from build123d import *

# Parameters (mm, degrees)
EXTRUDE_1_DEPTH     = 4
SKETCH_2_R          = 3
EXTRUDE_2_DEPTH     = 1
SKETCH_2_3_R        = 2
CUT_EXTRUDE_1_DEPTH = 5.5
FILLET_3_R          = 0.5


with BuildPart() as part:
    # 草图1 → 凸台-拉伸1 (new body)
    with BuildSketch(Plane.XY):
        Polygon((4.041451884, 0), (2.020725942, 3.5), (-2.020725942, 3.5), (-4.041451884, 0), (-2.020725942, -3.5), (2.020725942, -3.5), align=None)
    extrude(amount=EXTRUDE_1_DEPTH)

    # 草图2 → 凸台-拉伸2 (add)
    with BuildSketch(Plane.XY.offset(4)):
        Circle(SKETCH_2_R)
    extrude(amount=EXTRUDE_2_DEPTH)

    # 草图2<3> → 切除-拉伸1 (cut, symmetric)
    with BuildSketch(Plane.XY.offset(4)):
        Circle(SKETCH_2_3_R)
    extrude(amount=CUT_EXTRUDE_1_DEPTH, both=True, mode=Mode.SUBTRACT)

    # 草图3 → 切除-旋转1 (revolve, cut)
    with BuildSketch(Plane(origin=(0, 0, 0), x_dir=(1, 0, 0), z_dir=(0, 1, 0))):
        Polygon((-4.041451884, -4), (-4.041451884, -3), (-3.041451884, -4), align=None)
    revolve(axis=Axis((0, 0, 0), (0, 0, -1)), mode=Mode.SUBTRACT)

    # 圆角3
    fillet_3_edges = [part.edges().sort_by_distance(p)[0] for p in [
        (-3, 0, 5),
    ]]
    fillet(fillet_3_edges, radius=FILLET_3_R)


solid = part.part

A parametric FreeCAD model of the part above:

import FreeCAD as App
import Part
import Sketcher

V = App.Vector
Q = App.Units.Quantity


def edges_at(feature, points):
    """Names of the edges that pass closest to the given points."""
    edges = feature.Shape.Edges
    near = lambda p: min(range(len(edges)), key=lambda i: edges[i].distToShape(Part.Vertex(*p))[0])
    return sorted({f"Edge{near(p) + 1}" for p in points})

doc = App.newDocument("Part")
body = doc.addObject("PartDesign::Body", "Body")

sketch1 = body.newObject("Sketcher::SketchObject", "Sketch")
sketch1.AttachmentSupport = (doc.getObject("XY_Plane"), [""])
sketch1.MapMode = "FlatFace"
sketch1.addGeometry(Part.LineSegment(V(4.041452, 0, 0), V(2.020726, 3.5, 0)), False)
sketch1.addGeometry(Part.LineSegment(V(2.020726, 3.5, 0), V(-2.020726, 3.5, 0)), False)
sketch1.addGeometry(Part.LineSegment(V(-2.020726, 3.5, 0), V(-4.041452, 0, 0)), False)
sketch1.addGeometry(Part.LineSegment(V(-4.041452, 0, 0), V(-2.020726, -3.5, 0)), False)
sketch1.addGeometry(Part.LineSegment(V(-2.020726, -3.5, 0), V(2.020726, -3.5, 0)), False)
sketch1.addGeometry(Part.LineSegment(V(2.020726, -3.5, 0), V(4.041452, 0, 0)), False)
sketch1.addConstraint(Sketcher.Constraint("Coincident", 0, 2, 1, 1))
sketch1.addConstraint(Sketcher.Constraint("Coincident", 1, 2, 2, 1))
sketch1.addConstraint(Sketcher.Constraint("Coincident", 2, 2, 3, 1))
sketch1.addConstraint(Sketcher.Constraint("Coincident", 3, 2, 4, 1))
sketch1.addConstraint(Sketcher.Constraint("Coincident", 4, 2, 5, 1))
sketch1.addConstraint(Sketcher.Constraint("Coincident", 5, 2, 0, 1))
sketch1.addConstraint(Sketcher.Constraint("Horizontal", 1))
sketch1.addConstraint(Sketcher.Constraint("Horizontal", 4))
sketch1.addConstraint(Sketcher.Constraint("Symmetric", 0, 2, 3, 2, -1, 1))
sketch1.addConstraint(Sketcher.Constraint("Symmetric", 2, 2, 5, 2, -1, 1))
sketch1.addConstraint(Sketcher.Constraint("PointOnObject", 2, 2, -1))
sketch1.addConstraint(Sketcher.Constraint("Parallel", 2, 5))
sketch1.addConstraint(Sketcher.Constraint("Vertical", 1, 2, 3, 2))
sketch1.addConstraint(Sketcher.Constraint("Angle", 0, Q("120 deg")))
sketch1.addConstraint(Sketcher.Constraint("DistanceY", 3, 2, 1, 2, Q("7 mm")))
sketch1.addConstraint(Sketcher.Constraint("DistanceX", 1, 2, 1, 1, Q("4.041452 mm")))
pad1 = body.newObject("PartDesign::Pad", "Pad")
pad1.Profile = sketch1
pad1.Length = 4

sketch2 = body.newObject("Sketcher::SketchObject", "Sketch001")
sketch2.AttachmentSupport = (doc.getObject("XY_Plane"), [""])
sketch2.MapMode = "FlatFace"
sketch2.AttachmentOffset = App.Placement(V(0, 0, 4), App.Rotation())
sketch2.addGeometry(Part.Circle(V(0, 0, 0), V(0, 0, 1), 3), False)
sketch2.addConstraint(Sketcher.Constraint("Coincident", 0, 3, -1, 1))
sketch2.addConstraint(Sketcher.Constraint("Diameter", 0, Q("6 mm")))
pad2 = body.newObject("PartDesign::Pad", "Pad001")
pad2.Profile = sketch2
pad2.Length = 1

sketch3 = body.newObject("Sketcher::SketchObject", "Sketch002")
sketch3.AttachmentSupport = (doc.getObject("XY_Plane"), [""])
sketch3.MapMode = "FlatFace"
sketch3.AttachmentOffset = App.Placement(V(0, 0, 4), App.Rotation())
sketch3.addGeometry(Part.Circle(V(0, 0, 0), V(0, 0, 1), 2), False)
sketch3.addConstraint(Sketcher.Constraint("Coincident", 0, 3, -1, 1))
sketch3.addConstraint(Sketcher.Constraint("Diameter", 0, Q("4 mm")))
pocket1 = body.newObject("PartDesign::Pocket", "Pocket")
pocket1.Profile = sketch3
pocket1.Length = 11
pocket1.Midplane = True

sketch4 = body.newObject("Sketcher::SketchObject", "Sketch003")
sketch4.AttachmentSupport = (doc.getObject("XZ_Plane"), [""])
sketch4.MapMode = "FlatFace"
sketch4.addGeometry(Part.LineSegment(V(-4.041452, 3, 0), V(-4.041452, 4, 0)), False)
sketch4.addGeometry(Part.LineSegment(V(-4.041452, 4, 0), V(-3.041452, 4, 0)), False)
sketch4.addGeometry(Part.LineSegment(V(-3.041452, 4, 0), V(-4.041452, 3, 0)), False)
sketch4.addConstraint(Sketcher.Constraint("Coincident", 0, 2, 1, 1))
sketch4.addConstraint(Sketcher.Constraint("Coincident", 1, 2, 2, 1))
sketch4.addConstraint(Sketcher.Constraint("Coincident", 2, 2, 0, 1))
sketch4.addConstraint(Sketcher.Constraint("Vertical", 0))
sketch4.addConstraint(Sketcher.Constraint("Horizontal", 1))
sketch4.addConstraint(Sketcher.Constraint("Equal", 1, 0))
sketch4.addConstraint(Sketcher.Constraint("DistanceX", 1, 1, 1, 2, Q("1 mm")))
sketch4.addConstraint(Sketcher.Constraint("DistanceY", -1, 1, 0, 2, Q("4 mm")))
sketch4.addConstraint(Sketcher.Constraint("DistanceX", 0, 2, -1, 1, Q("4.041452 mm")))
groove = body.newObject("PartDesign::Groove", "Groove")
groove.Profile = sketch4
groove.ReferenceAxis = (sketch4, ["V_Axis"])
groove.Angle = 360
doc.recompute()

fillet = body.newObject("PartDesign::Fillet", "Fillet")
fillet.Base = (groove, edges_at(groove, [(-3, 0, 5)]))
fillet.Radius = 0.5

doc.recompute()
